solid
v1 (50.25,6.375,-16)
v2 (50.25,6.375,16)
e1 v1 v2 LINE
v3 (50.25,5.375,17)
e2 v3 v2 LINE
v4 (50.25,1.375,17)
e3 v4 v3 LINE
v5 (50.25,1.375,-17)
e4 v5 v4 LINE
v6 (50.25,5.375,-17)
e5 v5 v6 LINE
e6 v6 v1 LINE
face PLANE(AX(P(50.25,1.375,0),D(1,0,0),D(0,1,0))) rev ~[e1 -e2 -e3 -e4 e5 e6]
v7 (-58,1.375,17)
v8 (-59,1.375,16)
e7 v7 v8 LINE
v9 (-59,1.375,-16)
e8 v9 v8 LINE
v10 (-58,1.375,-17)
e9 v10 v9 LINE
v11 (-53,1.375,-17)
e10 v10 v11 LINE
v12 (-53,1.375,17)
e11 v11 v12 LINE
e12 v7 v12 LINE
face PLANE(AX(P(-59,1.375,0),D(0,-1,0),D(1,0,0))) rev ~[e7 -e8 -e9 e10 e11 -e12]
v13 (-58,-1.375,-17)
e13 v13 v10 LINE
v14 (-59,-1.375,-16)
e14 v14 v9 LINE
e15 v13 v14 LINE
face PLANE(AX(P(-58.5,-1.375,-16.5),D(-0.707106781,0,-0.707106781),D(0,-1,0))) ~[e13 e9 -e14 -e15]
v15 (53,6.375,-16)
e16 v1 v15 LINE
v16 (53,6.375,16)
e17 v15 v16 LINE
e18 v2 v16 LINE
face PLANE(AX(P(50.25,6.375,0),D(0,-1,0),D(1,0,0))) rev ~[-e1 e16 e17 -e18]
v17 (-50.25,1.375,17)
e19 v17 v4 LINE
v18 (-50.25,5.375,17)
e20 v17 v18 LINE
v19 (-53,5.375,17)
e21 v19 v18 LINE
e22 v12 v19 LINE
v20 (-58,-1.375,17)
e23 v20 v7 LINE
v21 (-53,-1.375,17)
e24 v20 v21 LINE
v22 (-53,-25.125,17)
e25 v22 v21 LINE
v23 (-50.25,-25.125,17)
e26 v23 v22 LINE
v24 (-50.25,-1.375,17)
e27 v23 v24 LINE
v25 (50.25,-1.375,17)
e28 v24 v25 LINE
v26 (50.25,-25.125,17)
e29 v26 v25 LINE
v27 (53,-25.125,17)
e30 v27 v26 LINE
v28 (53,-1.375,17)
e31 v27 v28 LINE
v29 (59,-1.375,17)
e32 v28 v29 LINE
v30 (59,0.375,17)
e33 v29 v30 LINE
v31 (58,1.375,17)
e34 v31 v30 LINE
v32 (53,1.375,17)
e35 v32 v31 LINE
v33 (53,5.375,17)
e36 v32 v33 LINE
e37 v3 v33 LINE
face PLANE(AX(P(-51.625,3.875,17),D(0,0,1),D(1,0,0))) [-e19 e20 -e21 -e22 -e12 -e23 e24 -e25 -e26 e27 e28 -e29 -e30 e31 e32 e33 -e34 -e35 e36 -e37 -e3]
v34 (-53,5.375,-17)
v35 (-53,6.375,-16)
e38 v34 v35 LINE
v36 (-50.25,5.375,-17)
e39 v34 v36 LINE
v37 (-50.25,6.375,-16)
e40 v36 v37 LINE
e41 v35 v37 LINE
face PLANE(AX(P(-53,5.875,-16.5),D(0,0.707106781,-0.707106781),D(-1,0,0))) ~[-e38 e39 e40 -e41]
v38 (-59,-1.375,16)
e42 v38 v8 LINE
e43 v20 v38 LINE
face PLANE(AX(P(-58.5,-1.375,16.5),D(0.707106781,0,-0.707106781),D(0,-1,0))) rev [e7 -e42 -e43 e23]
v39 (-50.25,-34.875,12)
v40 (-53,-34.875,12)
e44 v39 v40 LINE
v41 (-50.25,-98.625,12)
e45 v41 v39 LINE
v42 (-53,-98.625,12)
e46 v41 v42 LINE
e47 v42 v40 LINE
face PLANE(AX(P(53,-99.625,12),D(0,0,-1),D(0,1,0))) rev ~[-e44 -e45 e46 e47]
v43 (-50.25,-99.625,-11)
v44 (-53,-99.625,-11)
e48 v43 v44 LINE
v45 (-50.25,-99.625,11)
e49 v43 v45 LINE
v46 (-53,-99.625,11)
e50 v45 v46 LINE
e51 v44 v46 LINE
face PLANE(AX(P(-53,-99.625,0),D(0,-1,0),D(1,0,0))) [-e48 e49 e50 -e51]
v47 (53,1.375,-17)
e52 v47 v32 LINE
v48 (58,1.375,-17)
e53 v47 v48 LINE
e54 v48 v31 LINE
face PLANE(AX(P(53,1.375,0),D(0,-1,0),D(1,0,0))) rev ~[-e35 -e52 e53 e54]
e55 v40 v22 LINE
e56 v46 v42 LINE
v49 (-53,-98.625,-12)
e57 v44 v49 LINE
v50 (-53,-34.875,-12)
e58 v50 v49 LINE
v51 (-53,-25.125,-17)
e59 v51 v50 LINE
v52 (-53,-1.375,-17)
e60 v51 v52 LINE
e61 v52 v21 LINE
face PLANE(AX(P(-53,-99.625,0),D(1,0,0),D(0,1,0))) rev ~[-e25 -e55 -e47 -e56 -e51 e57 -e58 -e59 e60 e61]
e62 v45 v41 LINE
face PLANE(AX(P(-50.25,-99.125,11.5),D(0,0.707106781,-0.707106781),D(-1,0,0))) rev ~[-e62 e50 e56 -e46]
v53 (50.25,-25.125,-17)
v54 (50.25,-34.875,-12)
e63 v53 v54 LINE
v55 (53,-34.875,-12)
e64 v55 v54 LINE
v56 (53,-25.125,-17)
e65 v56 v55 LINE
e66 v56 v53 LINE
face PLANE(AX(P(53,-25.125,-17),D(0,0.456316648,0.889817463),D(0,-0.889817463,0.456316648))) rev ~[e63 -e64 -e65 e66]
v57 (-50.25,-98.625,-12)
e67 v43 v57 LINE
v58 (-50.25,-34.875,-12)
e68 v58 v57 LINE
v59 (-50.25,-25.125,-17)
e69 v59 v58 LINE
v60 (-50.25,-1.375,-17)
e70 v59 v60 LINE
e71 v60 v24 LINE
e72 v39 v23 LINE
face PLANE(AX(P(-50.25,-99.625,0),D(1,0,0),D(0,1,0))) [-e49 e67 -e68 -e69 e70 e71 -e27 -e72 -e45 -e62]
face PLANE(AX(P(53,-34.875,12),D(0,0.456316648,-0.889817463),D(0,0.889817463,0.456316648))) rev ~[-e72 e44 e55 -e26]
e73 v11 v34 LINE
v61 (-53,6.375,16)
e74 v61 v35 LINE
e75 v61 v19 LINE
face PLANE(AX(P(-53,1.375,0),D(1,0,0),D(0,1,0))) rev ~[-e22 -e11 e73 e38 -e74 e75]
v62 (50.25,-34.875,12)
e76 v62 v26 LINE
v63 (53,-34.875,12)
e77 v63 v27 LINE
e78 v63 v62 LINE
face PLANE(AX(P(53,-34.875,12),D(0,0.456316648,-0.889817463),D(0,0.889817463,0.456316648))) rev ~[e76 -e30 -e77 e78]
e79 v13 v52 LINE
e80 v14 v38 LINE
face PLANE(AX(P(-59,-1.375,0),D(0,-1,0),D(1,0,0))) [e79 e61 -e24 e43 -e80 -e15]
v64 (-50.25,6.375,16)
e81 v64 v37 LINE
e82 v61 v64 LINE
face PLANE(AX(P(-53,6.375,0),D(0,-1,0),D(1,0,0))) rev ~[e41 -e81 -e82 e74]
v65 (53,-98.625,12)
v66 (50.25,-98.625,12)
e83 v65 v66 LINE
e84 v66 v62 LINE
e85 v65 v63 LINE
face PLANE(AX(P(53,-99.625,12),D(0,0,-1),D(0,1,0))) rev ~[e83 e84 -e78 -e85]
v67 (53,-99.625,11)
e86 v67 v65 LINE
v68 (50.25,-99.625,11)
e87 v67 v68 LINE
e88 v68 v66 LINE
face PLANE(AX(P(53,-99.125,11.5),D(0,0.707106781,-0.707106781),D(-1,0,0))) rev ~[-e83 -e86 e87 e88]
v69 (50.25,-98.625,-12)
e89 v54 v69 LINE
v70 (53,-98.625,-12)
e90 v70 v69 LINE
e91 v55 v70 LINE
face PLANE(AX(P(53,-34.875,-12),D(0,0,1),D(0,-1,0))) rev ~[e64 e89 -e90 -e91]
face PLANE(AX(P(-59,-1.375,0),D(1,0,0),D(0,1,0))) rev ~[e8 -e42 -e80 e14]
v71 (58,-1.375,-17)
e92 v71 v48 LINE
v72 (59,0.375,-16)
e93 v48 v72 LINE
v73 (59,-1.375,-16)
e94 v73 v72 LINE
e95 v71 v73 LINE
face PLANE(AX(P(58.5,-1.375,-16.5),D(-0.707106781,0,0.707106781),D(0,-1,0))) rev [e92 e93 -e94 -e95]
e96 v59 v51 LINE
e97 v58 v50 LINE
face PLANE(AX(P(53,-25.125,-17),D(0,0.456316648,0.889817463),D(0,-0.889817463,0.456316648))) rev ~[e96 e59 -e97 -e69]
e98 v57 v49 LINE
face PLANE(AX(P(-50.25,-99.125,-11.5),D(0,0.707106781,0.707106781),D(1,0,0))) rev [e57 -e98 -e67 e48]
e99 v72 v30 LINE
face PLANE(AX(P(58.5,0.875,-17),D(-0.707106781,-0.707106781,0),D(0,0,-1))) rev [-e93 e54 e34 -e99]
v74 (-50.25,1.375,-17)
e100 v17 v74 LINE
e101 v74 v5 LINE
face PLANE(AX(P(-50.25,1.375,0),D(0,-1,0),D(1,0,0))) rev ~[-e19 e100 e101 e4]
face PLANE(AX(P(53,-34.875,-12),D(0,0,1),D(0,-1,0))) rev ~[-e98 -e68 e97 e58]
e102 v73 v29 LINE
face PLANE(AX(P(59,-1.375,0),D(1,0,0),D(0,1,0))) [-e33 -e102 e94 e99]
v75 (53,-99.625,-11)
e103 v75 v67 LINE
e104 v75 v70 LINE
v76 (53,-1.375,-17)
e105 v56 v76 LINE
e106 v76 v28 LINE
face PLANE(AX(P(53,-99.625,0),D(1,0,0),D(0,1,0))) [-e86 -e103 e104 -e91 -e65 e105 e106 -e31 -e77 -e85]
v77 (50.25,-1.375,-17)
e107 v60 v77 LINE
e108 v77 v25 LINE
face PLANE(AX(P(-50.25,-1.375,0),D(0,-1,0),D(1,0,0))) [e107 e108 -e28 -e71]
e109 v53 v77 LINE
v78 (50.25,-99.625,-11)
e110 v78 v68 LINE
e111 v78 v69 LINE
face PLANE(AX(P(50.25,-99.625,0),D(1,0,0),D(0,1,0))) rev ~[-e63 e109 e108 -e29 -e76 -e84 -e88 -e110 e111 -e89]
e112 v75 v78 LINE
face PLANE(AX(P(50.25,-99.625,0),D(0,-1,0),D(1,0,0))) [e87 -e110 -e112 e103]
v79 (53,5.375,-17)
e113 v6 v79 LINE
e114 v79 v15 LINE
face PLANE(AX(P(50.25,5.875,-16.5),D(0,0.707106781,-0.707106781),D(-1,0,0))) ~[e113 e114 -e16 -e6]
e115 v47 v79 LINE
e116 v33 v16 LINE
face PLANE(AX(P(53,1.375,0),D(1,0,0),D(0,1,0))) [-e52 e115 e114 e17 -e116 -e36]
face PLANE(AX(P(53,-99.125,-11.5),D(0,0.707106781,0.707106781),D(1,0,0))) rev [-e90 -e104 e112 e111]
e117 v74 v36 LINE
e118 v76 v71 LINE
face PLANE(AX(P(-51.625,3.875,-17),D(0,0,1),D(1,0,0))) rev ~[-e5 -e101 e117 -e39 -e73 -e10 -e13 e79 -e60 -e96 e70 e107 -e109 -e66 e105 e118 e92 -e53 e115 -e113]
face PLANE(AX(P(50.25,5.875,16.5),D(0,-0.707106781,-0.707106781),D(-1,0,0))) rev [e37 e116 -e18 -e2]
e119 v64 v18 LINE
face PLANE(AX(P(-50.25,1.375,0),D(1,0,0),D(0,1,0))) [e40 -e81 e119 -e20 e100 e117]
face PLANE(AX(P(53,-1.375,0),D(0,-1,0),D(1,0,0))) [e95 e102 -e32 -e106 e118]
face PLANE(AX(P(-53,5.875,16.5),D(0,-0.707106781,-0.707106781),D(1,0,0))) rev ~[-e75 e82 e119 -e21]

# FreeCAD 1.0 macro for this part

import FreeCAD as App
import Part
import Sketcher


def edges_at(feature, points):
    """Names of the edges that pass closest to the given points."""
    edges = feature.Shape.Edges
    near = lambda p: min(range(len(edges)), key=lambda i: edges[i].distToShape(Part.Vertex(*p))[0])
    return sorted({f"Edge{near(p) + 1}" for p in points})


def add_polygon(sketch, points):
    """Adds a closed chain of lines whose ends are joined by coincident constraints."""
    first, n = sketch.GeometryCount, len(points)
    for a, b in zip(points, points[1:] + points[:1]):
        sketch.addGeometry(Part.LineSegment(App.Vector(*a, 0), App.Vector(*b, 0)), False)
    for i in range(n):
        sketch.addConstraint(Sketcher.Constraint("Coincident", first + i, 2, first + (i + 1) % n, 1))

doc = App.newDocument("Part")
body = doc.addObject("PartDesign::Body", "Body")

sketch1 = body.newObject("Sketcher::SketchObject", "Sketch")
sketch1.AttachmentSupport = (doc.getObject("XY_Plane"), [""])
sketch1.MapMode = "FlatFace"
add_polygon(sketch1, [(-53, 6.4), (-53, 1.4), (-59, 1.4), (-59, -1.4), (-53, -1.4), (-53, -99.6), (-50.2, -99.6), (-50.2, -1.4), (50.2, -1.4), (50.2, -99.6), (53, -99.6), (53, -1.4), (59, -1.4), (59, 1.4), (53, 1.4), (53, 6.4), (50.2, 6.4), (50.2, 1.4), (-50.2, 1.4), (-50.2, 6.4)])
sketch1.addConstraint(Sketcher.Constraint("Vertical", 0))
sketch1.addConstraint(Sketcher.Constraint("Horizontal", 1))
sketch1.addConstraint(Sketcher.Constraint("Vertical", 2))
sketch1.addConstraint(Sketcher.Constraint("Horizontal", 3))
sketch1.addConstraint(Sketcher.Constraint("Vertical", 4))
sketch1.addConstraint(Sketcher.Constraint("Horizontal", 5))
sketch1.addConstraint(Sketcher.Constraint("Vertical", 6))
sketch1.addConstraint(Sketcher.Constraint("Horizontal", 7))
sketch1.addConstraint(Sketcher.Constraint("Vertical", 8))
sketch1.addConstraint(Sketcher.Constraint("Horizontal", 9))
sketch1.addConstraint(Sketcher.Constraint("Vertical", 10))
sketch1.addConstraint(Sketcher.Constraint("Horizontal", 11))
sketch1.addConstraint(Sketcher.Constraint("Vertical", 12))
sketch1.addConstraint(Sketcher.Constraint("Horizontal", 13))
sketch1.addConstraint(Sketcher.Constraint("Vertical", 14))
sketch1.addConstraint(Sketcher.Constraint("Horizontal", 15))
sketch1.addConstraint(Sketcher.Constraint("Vertical", 16))
sketch1.addConstraint(Sketcher.Constraint("Horizontal", 17))
sketch1.addConstraint(Sketcher.Constraint("Vertical", 18))
sketch1.addConstraint(Sketcher.Constraint("Horizontal", 19))
sketch1.addConstraint(Sketcher.Constraint("Symmetric", 0, 2, 10, 2, -1, 1))
sketch1.addConstraint(Sketcher.Constraint("Symmetric", 2, 2, 12, 2, -1, 1))
sketch1.addConstraint(Sketcher.Constraint("Symmetric", 6, 2, 16, 2, -1, 1))
sketch1.addConstraint(Sketcher.Constraint("Symmetric", 5, 2, 8, 2, -2))
sketch1.addConstraint(Sketcher.Constraint("Symmetric", 3, 2, 10, 2, -2))
sketch1.addConstraint(Sketcher.Constraint("Symmetric", 15, 2, 18, 2, -2))
sketch1.addConstraint(Sketcher.Constraint("Horizontal", 3, 2, 6, 2))
sketch1.addConstraint(Sketcher.Constraint("Vertical", 10, 2, 13, 2))
sketch1.addConstraint(Sketcher.Constraint("Equal", 19, 2))
sketch1.addConstraint(Sketcher.Constraint("DistanceX", 1, 2, 1, 1, 6.0))
sketch1.addConstraint(Sketcher.Constraint("DistanceY", 0, 2, 0, 1, 5.0))
sketch1.addConstraint(Sketcher.Constraint("DistanceX", 7, 1, 7, 2, 100.5))
sketch1.addConstraint(Sketcher.Constraint("DistanceX", 0, 2, -1, 1, 53.0))
sketch1.addConstraint(Sketcher.Constraint("DistanceY", 4, 2, 0, 2, 101.0))
pad1 = body.newObject("PartDesign::Pad", "Pad")
pad1.Profile = sketch1
pad1.Length = 34
pad1.Midplane = True

sketch2 = body.newObject("Sketcher::SketchObject", "Sketch001")
sketch2.AttachmentSupport = (doc.getObject("YZ_Plane"), [""])
sketch2.MapMode = "FlatFace"
sketch2.AttachmentOffset = App.Placement(App.Vector(0, 0, 53), App.Rotation())
add_polygon(sketch2, [(-35, 12), (-25, 17), (-100, 17), (-100, 12)])
add_polygon(sketch2, [(-100, -17), (-25, -17), (-35, -12), (-100, -12)])
sketch2.addConstraint(Sketcher.Constraint("Horizontal", 1))
sketch2.addConstraint(Sketcher.Constraint("Vertical", 2))
sketch2.addConstraint(Sketcher.Constraint("Horizontal", 3))
sketch2.addConstraint(Sketcher.Constraint("Horizontal", 4))
sketch2.addConstraint(Sketcher.Constraint("Horizontal", 6))
sketch2.addConstraint(Sketcher.Constraint("Vertical", 7))
sketch2.addConstraint(Sketcher.Constraint("Symmetric", 0, 2, 4, 2, -1))
sketch2.addConstraint(Sketcher.Constraint("Symmetric", 3, 2, 5, 2, -1))
sketch2.addConstraint(Sketcher.Constraint("Vertical", 2, 2, 6, 2))
sketch2.addConstraint(Sketcher.Constraint("DistanceY", 2, 2, 2, 1, 5.0))
sketch2.addConstraint(Sketcher.Constraint("DistanceX", 1, 2, 1, 1, 74.5))
sketch2.addConstraint(Sketcher.Constraint("DistanceY", -1, 1, 0, 2, 17.0))
sketch2.addConstraint(Sketcher.Constraint("DistanceX", 3, 1, 3, 2, 64.75))
sketch2.addConstraint(Sketcher.Constraint("DistanceX", 0, 2, -1, 1, 25.125))
pocket1 = body.newObject("PartDesign::Pocket", "Pocket")
pocket1.Profile = sketch2
pocket1.Type = "ThroughAll"
doc.recompute()

chamfer = body.newObject("PartDesign::Chamfer", "Chamfer")
chamfer.Base = (pocket1, edges_at(pocket1, [
    (-51.625, 6.375, 17),
    (51.625, -99.625, -12),
    (-59, 0, 17),
    (-51.625, 6.375, -17),
    (51.625, 6.375, -17),
    (59, 0, -17),
    (-59, 0, -17),
    (59, 1.375, 0),
    (51.625, 6.375, 17),
    (-51.625, -99.625, 12),
    (51.625, -99.625, 12),
    (-51.625, -99.625, -12),
]))
chamfer.Size = 1

doc.recompute()
